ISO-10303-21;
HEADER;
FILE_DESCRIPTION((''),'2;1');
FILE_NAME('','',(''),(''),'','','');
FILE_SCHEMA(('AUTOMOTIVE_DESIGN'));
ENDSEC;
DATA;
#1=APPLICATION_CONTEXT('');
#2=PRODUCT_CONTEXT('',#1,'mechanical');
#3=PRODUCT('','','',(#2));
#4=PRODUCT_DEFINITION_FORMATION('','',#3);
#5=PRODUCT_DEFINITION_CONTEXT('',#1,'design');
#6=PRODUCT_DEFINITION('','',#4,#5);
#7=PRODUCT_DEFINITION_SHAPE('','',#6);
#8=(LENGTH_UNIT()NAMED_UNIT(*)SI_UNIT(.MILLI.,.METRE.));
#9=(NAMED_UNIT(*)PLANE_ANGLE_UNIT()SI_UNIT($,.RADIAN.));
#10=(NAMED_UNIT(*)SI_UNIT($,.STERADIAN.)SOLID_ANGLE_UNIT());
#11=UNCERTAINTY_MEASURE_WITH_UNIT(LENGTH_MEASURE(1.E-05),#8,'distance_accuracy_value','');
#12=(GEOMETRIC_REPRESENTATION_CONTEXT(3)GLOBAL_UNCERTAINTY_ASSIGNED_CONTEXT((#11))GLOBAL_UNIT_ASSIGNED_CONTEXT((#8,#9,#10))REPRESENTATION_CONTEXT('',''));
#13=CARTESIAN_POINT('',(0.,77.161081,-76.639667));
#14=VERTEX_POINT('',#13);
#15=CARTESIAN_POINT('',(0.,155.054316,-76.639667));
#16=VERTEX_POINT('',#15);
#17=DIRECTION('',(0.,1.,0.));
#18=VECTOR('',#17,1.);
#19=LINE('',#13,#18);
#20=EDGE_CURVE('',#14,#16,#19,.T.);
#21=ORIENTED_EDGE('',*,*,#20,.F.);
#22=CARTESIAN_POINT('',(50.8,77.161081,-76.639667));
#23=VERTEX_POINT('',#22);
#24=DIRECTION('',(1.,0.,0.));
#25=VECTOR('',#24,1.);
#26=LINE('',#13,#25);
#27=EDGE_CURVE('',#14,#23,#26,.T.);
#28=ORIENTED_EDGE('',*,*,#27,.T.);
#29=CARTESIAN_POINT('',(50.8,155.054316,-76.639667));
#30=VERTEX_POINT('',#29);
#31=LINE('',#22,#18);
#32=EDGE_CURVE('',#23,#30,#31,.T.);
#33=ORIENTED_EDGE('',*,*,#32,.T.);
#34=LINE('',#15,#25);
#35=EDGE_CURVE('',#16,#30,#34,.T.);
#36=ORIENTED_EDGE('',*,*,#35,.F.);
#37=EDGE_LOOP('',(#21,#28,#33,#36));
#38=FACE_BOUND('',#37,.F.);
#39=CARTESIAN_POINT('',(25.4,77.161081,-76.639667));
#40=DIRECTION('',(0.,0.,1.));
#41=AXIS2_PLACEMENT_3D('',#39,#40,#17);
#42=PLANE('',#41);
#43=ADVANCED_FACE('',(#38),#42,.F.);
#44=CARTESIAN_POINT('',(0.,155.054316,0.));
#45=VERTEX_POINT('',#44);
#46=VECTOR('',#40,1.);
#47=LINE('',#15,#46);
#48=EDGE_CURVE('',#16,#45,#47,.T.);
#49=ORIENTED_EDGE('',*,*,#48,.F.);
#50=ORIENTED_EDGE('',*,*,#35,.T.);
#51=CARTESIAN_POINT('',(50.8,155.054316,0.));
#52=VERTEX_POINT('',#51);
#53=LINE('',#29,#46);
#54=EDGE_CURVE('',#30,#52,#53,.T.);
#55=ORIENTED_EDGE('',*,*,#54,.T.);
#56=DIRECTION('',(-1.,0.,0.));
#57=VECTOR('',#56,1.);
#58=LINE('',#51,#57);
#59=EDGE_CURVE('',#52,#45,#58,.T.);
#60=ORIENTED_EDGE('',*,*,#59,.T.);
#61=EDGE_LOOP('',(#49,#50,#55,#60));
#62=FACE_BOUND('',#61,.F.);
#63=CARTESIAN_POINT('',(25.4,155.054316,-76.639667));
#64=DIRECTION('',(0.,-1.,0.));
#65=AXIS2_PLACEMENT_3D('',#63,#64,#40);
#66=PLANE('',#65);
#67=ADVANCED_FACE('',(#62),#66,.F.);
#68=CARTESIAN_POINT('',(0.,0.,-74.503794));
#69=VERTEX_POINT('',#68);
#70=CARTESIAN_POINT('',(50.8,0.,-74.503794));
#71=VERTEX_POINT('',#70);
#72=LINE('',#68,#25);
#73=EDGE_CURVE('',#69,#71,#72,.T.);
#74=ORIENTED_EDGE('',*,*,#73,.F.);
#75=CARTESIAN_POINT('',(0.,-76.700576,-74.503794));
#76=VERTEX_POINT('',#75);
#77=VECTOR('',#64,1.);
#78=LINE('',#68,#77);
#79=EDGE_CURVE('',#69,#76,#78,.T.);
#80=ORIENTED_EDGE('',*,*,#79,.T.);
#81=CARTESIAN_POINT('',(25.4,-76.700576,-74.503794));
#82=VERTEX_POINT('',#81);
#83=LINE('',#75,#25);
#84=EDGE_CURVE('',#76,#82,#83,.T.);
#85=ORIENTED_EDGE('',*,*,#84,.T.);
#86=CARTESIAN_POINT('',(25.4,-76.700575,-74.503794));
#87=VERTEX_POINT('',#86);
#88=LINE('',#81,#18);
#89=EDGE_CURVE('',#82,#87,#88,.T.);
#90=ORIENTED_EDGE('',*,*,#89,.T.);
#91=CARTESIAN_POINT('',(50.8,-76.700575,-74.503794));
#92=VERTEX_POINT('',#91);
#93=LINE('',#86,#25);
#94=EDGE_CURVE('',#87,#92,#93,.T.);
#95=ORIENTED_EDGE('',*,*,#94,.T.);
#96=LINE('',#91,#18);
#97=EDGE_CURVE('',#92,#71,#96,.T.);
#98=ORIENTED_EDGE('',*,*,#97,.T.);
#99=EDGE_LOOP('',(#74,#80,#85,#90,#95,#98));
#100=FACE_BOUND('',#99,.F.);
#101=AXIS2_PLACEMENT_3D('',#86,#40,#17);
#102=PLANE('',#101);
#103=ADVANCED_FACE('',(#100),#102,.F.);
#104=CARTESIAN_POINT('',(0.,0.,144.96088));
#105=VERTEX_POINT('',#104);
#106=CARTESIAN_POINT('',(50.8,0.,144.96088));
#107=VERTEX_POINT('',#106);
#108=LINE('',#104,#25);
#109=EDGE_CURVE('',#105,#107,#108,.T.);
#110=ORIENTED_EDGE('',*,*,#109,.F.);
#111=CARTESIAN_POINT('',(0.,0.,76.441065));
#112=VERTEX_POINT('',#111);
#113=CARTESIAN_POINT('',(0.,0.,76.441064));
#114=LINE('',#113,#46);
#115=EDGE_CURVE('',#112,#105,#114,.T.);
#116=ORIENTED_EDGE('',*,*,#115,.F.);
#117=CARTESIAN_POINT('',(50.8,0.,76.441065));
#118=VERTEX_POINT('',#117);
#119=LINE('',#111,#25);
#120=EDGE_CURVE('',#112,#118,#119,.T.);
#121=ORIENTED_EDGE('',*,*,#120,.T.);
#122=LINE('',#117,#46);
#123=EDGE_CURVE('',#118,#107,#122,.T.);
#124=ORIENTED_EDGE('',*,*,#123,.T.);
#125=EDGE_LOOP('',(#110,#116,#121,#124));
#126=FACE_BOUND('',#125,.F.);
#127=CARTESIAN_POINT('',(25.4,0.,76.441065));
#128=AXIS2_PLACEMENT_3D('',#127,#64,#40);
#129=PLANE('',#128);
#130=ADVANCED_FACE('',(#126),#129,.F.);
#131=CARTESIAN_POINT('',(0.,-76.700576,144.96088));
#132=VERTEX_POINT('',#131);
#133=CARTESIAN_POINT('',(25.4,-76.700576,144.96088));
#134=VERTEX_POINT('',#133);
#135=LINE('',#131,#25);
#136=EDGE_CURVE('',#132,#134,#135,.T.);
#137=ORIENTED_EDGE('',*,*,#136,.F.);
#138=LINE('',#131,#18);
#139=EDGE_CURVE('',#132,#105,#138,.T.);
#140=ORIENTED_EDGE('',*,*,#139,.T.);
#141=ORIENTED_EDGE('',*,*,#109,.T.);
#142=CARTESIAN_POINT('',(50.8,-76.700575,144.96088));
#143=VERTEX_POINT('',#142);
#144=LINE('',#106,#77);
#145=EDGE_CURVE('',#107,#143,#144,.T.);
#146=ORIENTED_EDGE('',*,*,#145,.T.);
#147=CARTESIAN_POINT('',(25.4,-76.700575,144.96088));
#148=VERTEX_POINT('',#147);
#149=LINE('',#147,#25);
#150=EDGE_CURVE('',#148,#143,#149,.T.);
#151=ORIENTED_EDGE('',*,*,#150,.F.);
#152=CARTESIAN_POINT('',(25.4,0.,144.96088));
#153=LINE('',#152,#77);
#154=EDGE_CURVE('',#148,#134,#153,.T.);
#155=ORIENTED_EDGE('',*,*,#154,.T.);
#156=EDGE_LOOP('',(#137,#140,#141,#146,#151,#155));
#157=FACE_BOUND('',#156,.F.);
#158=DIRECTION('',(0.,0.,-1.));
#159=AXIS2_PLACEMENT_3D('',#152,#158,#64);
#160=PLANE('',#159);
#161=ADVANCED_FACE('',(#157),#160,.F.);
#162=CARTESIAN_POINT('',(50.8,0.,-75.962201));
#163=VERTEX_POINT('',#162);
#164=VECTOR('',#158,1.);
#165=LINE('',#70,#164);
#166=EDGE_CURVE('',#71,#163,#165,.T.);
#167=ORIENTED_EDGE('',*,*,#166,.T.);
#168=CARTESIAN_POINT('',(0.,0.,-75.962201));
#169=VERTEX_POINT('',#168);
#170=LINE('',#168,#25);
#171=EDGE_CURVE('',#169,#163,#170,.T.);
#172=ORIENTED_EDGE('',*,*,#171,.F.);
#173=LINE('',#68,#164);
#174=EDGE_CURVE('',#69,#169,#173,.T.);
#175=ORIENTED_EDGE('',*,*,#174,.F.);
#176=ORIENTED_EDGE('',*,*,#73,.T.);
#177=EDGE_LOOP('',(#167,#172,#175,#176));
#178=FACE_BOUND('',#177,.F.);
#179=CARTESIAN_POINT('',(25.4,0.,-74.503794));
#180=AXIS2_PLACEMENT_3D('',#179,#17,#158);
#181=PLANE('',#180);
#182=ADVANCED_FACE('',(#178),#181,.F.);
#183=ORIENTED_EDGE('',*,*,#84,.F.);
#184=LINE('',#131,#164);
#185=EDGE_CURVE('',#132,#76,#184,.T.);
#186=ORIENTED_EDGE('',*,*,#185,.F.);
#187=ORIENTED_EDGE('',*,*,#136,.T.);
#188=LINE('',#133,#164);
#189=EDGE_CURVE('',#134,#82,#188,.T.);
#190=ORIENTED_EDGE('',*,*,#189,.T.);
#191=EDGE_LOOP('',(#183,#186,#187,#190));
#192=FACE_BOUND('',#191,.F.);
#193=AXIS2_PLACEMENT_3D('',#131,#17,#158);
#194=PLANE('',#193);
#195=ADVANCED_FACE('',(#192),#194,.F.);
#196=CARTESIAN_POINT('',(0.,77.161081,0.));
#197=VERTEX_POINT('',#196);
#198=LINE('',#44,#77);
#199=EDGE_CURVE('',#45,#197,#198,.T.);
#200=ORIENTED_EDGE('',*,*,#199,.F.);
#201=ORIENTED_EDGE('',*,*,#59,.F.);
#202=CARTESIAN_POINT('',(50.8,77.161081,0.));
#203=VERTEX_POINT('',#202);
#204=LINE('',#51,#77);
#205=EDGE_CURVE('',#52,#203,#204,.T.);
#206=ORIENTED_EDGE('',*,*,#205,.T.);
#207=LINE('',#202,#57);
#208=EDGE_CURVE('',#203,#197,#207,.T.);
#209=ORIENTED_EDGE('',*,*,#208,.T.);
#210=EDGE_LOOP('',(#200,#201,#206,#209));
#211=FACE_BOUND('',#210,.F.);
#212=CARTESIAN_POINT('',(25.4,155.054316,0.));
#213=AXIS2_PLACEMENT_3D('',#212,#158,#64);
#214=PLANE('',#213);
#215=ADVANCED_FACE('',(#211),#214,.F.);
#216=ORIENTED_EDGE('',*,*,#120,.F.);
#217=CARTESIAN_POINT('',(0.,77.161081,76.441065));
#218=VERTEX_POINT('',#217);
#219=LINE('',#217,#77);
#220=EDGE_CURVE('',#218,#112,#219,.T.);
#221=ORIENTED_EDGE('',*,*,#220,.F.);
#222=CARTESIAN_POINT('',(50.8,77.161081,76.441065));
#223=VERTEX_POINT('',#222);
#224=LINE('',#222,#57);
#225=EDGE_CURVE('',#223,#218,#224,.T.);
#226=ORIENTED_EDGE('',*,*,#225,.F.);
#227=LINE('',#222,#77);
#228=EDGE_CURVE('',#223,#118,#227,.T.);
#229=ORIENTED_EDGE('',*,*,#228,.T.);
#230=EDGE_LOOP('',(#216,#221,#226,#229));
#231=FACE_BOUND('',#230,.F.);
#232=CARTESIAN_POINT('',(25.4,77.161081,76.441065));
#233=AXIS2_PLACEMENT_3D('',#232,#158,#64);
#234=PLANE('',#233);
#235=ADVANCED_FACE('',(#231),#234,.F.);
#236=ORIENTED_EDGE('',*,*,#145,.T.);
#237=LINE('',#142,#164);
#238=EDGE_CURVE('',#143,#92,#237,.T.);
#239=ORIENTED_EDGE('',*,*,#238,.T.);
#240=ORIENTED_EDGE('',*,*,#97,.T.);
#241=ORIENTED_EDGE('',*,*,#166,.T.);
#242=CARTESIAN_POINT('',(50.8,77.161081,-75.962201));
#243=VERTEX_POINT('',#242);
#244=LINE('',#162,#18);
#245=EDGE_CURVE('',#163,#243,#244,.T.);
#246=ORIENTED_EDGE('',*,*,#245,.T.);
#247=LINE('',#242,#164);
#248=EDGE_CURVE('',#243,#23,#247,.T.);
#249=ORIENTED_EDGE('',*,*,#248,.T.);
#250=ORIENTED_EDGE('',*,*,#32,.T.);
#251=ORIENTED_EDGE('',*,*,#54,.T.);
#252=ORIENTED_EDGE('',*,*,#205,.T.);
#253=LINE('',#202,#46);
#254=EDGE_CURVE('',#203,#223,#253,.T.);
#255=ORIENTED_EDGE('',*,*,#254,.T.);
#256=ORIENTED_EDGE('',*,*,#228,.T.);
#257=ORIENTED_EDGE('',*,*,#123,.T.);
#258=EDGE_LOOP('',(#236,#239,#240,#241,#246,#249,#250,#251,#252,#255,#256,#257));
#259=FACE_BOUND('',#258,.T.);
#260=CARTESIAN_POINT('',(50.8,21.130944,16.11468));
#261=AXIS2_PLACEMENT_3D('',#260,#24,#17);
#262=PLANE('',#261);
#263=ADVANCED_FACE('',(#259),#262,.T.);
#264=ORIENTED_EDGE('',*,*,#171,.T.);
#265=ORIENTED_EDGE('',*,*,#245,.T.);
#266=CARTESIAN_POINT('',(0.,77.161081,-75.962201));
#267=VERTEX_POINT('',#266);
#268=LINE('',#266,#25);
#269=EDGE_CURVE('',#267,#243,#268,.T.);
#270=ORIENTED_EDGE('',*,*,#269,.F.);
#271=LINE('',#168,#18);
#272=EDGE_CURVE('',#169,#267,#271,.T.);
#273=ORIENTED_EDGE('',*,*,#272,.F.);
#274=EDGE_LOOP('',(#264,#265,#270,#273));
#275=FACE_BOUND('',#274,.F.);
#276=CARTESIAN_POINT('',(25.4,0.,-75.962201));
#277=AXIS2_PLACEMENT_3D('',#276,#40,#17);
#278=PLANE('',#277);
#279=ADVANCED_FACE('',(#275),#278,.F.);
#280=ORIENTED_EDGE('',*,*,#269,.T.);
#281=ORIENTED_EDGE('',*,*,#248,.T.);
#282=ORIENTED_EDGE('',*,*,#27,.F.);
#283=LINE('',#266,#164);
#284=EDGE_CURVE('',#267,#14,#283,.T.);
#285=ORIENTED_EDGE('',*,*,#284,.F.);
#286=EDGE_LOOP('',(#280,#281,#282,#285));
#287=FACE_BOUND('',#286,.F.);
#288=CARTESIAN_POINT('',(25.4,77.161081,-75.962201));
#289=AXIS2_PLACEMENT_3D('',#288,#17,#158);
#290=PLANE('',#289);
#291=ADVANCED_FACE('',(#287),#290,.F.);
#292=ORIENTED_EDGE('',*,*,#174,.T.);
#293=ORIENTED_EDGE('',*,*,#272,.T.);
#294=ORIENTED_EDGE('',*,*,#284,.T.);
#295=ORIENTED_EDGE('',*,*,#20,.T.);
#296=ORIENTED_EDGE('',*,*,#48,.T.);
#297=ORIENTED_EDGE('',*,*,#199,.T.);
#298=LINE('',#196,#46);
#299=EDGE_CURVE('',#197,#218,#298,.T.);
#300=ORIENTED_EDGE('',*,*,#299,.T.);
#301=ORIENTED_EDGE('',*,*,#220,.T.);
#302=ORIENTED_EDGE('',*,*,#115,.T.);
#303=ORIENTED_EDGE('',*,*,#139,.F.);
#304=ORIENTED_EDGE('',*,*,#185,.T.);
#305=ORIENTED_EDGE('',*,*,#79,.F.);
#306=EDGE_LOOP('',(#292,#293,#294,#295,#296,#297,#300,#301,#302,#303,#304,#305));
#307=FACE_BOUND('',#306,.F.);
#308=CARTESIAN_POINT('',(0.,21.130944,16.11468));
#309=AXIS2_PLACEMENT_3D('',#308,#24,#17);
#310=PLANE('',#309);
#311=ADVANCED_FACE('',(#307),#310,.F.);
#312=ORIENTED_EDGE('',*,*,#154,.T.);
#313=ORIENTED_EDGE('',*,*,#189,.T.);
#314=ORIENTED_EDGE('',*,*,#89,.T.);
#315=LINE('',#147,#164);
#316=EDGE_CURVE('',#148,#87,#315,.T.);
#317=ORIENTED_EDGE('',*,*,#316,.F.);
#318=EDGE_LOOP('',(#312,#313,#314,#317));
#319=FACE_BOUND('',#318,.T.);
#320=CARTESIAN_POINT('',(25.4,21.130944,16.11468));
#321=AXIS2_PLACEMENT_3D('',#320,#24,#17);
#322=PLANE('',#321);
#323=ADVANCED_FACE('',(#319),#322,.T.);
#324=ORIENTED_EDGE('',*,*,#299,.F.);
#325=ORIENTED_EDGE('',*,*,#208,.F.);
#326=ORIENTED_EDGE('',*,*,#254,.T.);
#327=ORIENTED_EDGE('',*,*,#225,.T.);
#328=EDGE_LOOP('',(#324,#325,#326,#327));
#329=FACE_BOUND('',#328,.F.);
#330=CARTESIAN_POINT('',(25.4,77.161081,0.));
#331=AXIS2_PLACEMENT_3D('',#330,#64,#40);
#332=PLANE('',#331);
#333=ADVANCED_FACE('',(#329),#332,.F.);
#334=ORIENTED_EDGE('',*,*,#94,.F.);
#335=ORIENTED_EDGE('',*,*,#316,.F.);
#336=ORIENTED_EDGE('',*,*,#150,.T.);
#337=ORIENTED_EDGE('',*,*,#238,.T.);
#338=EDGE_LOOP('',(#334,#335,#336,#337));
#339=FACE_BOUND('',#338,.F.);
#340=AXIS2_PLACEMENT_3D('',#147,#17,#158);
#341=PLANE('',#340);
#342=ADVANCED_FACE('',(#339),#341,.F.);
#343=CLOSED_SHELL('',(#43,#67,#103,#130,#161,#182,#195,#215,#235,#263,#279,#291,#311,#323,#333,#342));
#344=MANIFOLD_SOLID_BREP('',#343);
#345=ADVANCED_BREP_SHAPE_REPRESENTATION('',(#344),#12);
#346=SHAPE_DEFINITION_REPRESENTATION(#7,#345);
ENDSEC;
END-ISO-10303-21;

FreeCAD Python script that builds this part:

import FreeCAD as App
import Part
import Sketcher
Q = App.Units.Quantity

doc = App.newDocument("Part")
params = doc.addObject("Spreadsheet::Sheet", "Params")
for row, (alias, value) in enumerate([
    ("pad1_length", "1 in"),
    ("pad2_length", "1 in"),
    ("pad3_length", "1 in"),
], start=1):
    params.set(f"A{row}", alias)
    params.set(f"B{row}", "=" + value)
    params.setAlias(f"B{row}", alias)

body = doc.addObject("PartDesign::Body", "Body")

sketch1 = body.newObject("Sketcher::SketchObject", "Sketch")
sketch1.AttachmentSupport = (doc.getObject("YZ_Plane"), [""])
sketch1.MapMode = "FlatFace"
sketch1.addGeometry([
    Part.LineSegment(App.Vector(-76.700576, -74.503794, 0), App.Vector(0, -74.503794, 0)),
    Part.LineSegment(App.Vector(0, -74.503794, 0), App.Vector(0, -75.962201, 0)),
    Part.LineSegment(App.Vector(0, -75.962201, 0), App.Vector(77.161081, -75.962201, 0)),
    Part.LineSegment(App.Vector(77.161081, -75.962201, 0), App.Vector(77.161081, -76.639667, 0)),
    Part.LineSegment(App.Vector(77.161081, -76.639667, 0), App.Vector(155.054316, -76.639667, 0)),
    Part.LineSegment(App.Vector(155.054316, -76.639667, 0), App.Vector(155.054316, 0, 0)),
    Part.LineSegment(App.Vector(155.054316, 0, 0), App.Vector(77.16108, 0, 0)),
    Part.LineSegment(App.Vector(77.16108, 0, 0), App.Vector(77.16108, 76.441064, 0)),
    Part.LineSegment(App.Vector(77.16108, 76.441064, 0), App.Vector(0, 76.441064, 0)),
    Part.LineSegment(App.Vector(0, 76.441064, 0), App.Vector(0, 144.96088, 0)),
    Part.LineSegment(App.Vector(0, 144.96088, 0), App.Vector(-76.700576, 144.96088, 0)),
    Part.LineSegment(App.Vector(-76.700576, 144.96088, 0), App.Vector(-76.700576, -74.503794, 0)),
], False)
sketch1.addConstraint([
    Sketcher.Constraint("Coincident", 0, 2, 1, 1),
    Sketcher.Constraint("Coincident", 1, 2, 2, 1),
    Sketcher.Constraint("Coincident", 2, 2, 3, 1),
    Sketcher.Constraint("Coincident", 3, 2, 4, 1),
    Sketcher.Constraint("Coincident", 4, 2, 5, 1),
    Sketcher.Constraint("Coincident", 5, 2, 6, 1),
    Sketcher.Constraint("Coincident", 6, 2, 7, 1),
    Sketcher.Constraint("Coincident", 7, 2, 8, 1),
    Sketcher.Constraint("Coincident", 8, 2, 9, 1),
    Sketcher.Constraint("Coincident", 9, 2, 10, 1),
    Sketcher.Constraint("Coincident", 10, 2, 11, 1),
    Sketcher.Constraint("Coincident", 11, 2, 0, 1),
    Sketcher.Constraint("Horizontal", 0),
    Sketcher.Constraint("Vertical", 1),
    Sketcher.Constraint("Horizontal", 2),
    Sketcher.Constraint("Vertical", 3),
    Sketcher.Constraint("Horizontal", 4),
    Sketcher.Constraint("Vertical", 5),
    Sketcher.Constraint("Horizontal", 6),
    Sketcher.Constraint("Vertical", 7),
    Sketcher.Constraint("Horizontal", 8),
    Sketcher.Constraint("Vertical", 9),
    Sketcher.Constraint("Horizontal", 10),
    Sketcher.Constraint("Vertical", 11),
    Sketcher.Constraint("PointOnObject", 0, 2, -2),
    Sketcher.Constraint("PointOnObject", 5, 2, -1),
    Sketcher.Constraint("PointOnObject", 8, 2, -2),
    Sketcher.Constraint("Vertical", 3, 2, 6, 2),
    Sketcher.Constraint("DistanceX", 2, 1, 2, 2, Q("77.161081 mm")),
    Sketcher.Constraint("DistanceY", 1, 2, -1, 1, Q("75.962201 mm")),
    Sketcher.Constraint("DistanceX", 0, 1, 0, 2, Q("76.700576 mm")),
    Sketcher.Constraint("DistanceX", 4, 1, 4, 2, Q("77.893235 mm")),
    Sketcher.Constraint("DistanceY", 1, 2, 1, 1, Q("1.458407 mm")),
    Sketcher.Constraint("DistanceY", 3, 2, 3, 1, Q("0.677466 mm")),
    Sketcher.Constraint("DistanceY", 7, 1, 7, 2, Q("76.441064 mm")),
    Sketcher.Constraint("DistanceY", 9, 1, 9, 2, Q("68.519816 mm")),
])
pad1 = body.newObject("PartDesign::Pad", "Pad")
pad1.Profile = sketch1
pad1.setExpression("Length", "Params.pad1_length")

sketch2 = body.newObject("Sketcher::SketchObject", "Sketch001")
sketch2.AttachmentSupport = (doc.getObject("YZ_Plane"), [""])
sketch2.MapMode = "FlatFace"
sketch2.AttachmentOffset = App.Placement(App.Vector(0, 0, 1 * 25.4), App.Rotation())
sketch2.addGeometry([
    Part.LineSegment(App.Vector(77.161081, 76.441065, 0), App.Vector(0, 76.441065, 0)),
    Part.LineSegment(App.Vector(0, 76.441065, 0), App.Vector(0, 144.96088, 0)),
    Part.LineSegment(App.Vector(0, 144.96088, 0), App.Vector(-76.700575, 144.96088, 0)),
    Part.LineSegment(App.Vector(-76.700575, 144.96088, 0), App.Vector(-76.700575, -74.503794, 0)),
    Part.LineSegment(App.Vector(-76.700575, -74.503794, 0), App.Vector(0, -74.503794, 0)),
    Part.LineSegment(App.Vector(0, -74.503794, 0), App.Vector(0, -75.962201, 0)),
    Part.LineSegment(App.Vector(0, -75.962201, 0), App.Vector(77.161081, -75.962201, 0)),
    Part.LineSegment(App.Vector(77.161081, -75.962201, 0), App.Vector(77.161081, -76.639667, 0)),
    Part.LineSegment(App.Vector(77.161081, -76.639667, 0), App.Vector(155.054316, -76.639667, 0)),
    Part.LineSegment(App.Vector(155.054316, -76.639667, 0), App.Vector(155.054316, 0, 0)),
    Part.LineSegment(App.Vector(155.054316, 0, 0), App.Vector(77.161081, 0, 0)),
    Part.LineSegment(App.Vector(77.161081, 0, 0), App.Vector(77.161081, 76.441065, 0)),
], False)
sketch2.addConstraint([
    Sketcher.Constraint("Coincident", 0, 2, 1, 1),
    Sketcher.Constraint("Coincident", 1, 2, 2, 1),
    Sketcher.Constraint("Coincident", 2, 2, 3, 1),
    Sketcher.Constraint("Coincident", 3, 2, 4, 1),
    Sketcher.Constraint("Coincident", 4, 2, 5, 1),
    Sketcher.Constraint("Coincident", 5, 2, 6, 1),
    Sketcher.Constraint("Coincident", 6, 2, 7, 1),
    Sketcher.Constraint("Coincident", 7, 2, 8, 1),
    Sketcher.Constraint("Coincident", 8, 2, 9, 1),
    Sketcher.Constraint("Coincident", 9, 2, 10, 1),
    Sketcher.Constraint("Coincident", 10, 2, 11, 1),
    Sketcher.Constraint("Coincident", 11, 2, 0, 1),
    Sketcher.Constraint("Horizontal", 0),
    Sketcher.Constraint("Vertical", 1),
    Sketcher.Constraint("Horizontal", 2),
    Sketcher.Constraint("Vertical", 3),
    Sketcher.Constraint("Horizontal", 4),
    Sketcher.Constraint("Vertical", 5),
    Sketcher.Constraint("Horizontal", 6),
    Sketcher.Constraint("Vertical", 7),
    Sketcher.Constraint("Horizontal", 8),
    Sketcher.Constraint("Vertical", 9),
    Sketcher.Constraint("Horizontal", 10),
    Sketcher.Constraint("Vertical", 11),
    Sketcher.Constraint("PointOnObject", 0, 2, -2),
    Sketcher.Constraint("PointOnObject", 4, 2, -2),
    Sketcher.Constraint("PointOnObject", 9, 2, -1),
    Sketcher.Constraint("Vertical", 7, 2, 10, 2),
    Sketcher.Constraint("DistanceX", 0, 2, 0, 1, Q("77.161081 mm")),
    Sketcher.Constraint("DistanceY", 5, 2, -1, 1, Q("75.962201 mm")),
    Sketcher.Constraint("DistanceX", 2, 2, 2, 1, Q("76.700575 mm")),
    Sketcher.Constraint("DistanceX", 8, 1, 8, 2, Q("77.893235 mm")),
    Sketcher.Constraint("DistanceY", 1, 1, 1, 2, Q("68.519815 mm")),
    Sketcher.Constraint("DistanceY", 3, 2, 3, 1, Q("219.464674 mm")),
    Sketcher.Constraint("DistanceY", 5, 2, 5, 1, Q("1.458407 mm")),
    Sketcher.Constraint("DistanceY", 7, 2, 7, 1, Q("0.677466 mm")),
])
pad2 = body.newObject("PartDesign::Pad", "Pad001")
pad2.Profile = sketch2
pad2.setExpression("Length", "Params.pad2_length")
pad2.Reversed = True

sketch3 = body.newObject("Sketcher::SketchObject", "Sketch002")
sketch3.AttachmentSupport = (doc.getObject("YZ_Plane"), [""])
sketch3.MapMode = "FlatFace"
sketch3.AttachmentOffset = App.Placement(App.Vector(0, 0, 1 * 25.4), App.Rotation())
sketch3.addGeometry([
    Part.LineSegment(App.Vector(77.161081, 76.441065, 0), App.Vector(0, 76.441065, 0)),
    Part.LineSegment(App.Vector(0, 76.441065, 0), App.Vector(0, 144.96088, 0)),
    Part.LineSegment(App.Vector(0, 144.96088, 0), App.Vector(-76.700575, 144.96088, 0)),
    Part.LineSegment(App.Vector(-76.700575, 144.96088, 0), App.Vector(-76.700575, -74.503794, 0)),
    Part.LineSegment(App.Vector(-76.700575, -74.503794, 0), App.Vector(0, -74.503794, 0)),
    Part.LineSegment(App.Vector(0, -74.503794, 0), App.Vector(0, -75.962201, 0)),
    Part.LineSegment(App.Vector(0, -75.962201, 0), App.Vector(77.161081, -75.962201, 0)),
    Part.LineSegment(App.Vector(77.161081, -75.962201, 0), App.Vector(77.161081, -76.639667, 0)),
    Part.LineSegment(App.Vector(77.161081, -76.639667, 0), App.Vector(155.054316, -76.639667, 0)),
    Part.LineSegment(App.Vector(155.054316, -76.639667, 0), App.Vector(155.054316, 0, 0)),
    Part.LineSegment(App.Vector(155.054316, 0, 0), App.Vector(77.161081, 0, 0)),
    Part.LineSegment(App.Vector(77.161081, 0, 0), App.Vector(77.161081, 76.441065, 0)),
], False)
sketch3.addConstraint([
    Sketcher.Constraint("Coincident", 0, 2, 1, 1),
    Sketcher.Constraint("Coincident", 1, 2, 2, 1),
    Sketcher.Constraint("Coincident", 2, 2, 3, 1),
    Sketcher.Constraint("Coincident", 3, 2, 4, 1),
    Sketcher.Constraint("Coincident", 4, 2, 5, 1),
    Sketcher.Constraint("Coincident", 5, 2, 6, 1),
    Sketcher.Constraint("Coincident", 6, 2, 7, 1),
    Sketcher.Constraint("Coincident", 7, 2, 8, 1),
    Sketcher.Constraint("Coincident", 8, 2, 9, 1),
    Sketcher.Constraint("Coincident", 9, 2, 10, 1),
    Sketcher.Constraint("Coincident", 10, 2, 11, 1),
    Sketcher.Constraint("Coincident", 11, 2, 0, 1),
    Sketcher.Constraint("Horizontal", 0),
    Sketcher.Constraint("Vertical", 1),
    Sketcher.Constraint("Horizontal", 2),
    Sketcher.Constraint("Vertical", 3),
    Sketcher.Constraint("Horizontal", 4),
    Sketcher.Constraint("Vertical", 5),
    Sketcher.Constraint("Horizontal", 6),
    Sketcher.Constraint("Vertical", 7),
    Sketcher.Constraint("Horizontal", 8),
    Sketcher.Constraint("Vertical", 9),
    Sketcher.Constraint("Horizontal", 10),
    Sketcher.Constraint("Vertical", 11),
    Sketcher.Constraint("PointOnObject", 0, 2, -2),
    Sketcher.Constraint("PointOnObject", 4, 2, -2),
    Sketcher.Constraint("PointOnObject", 9, 2, -1),
    Sketcher.Constraint("Vertical", 7, 2, 10, 2),
    Sketcher.Constraint("DistanceX", 0, 2, 0, 1, Q("77.161081 mm")),
    Sketcher.Constraint("DistanceY", 5, 2, -1, 1, Q("75.962201 mm")),
    Sketcher.Constraint("DistanceX", 2, 2, 2, 1, Q("76.700575 mm")),
    Sketcher.Constraint("DistanceX", 8, 1, 8, 2, Q("77.893235 mm")),
    Sketcher.Constraint("DistanceY", 1, 1, 1, 2, Q("68.519815 mm")),
    Sketcher.Constraint("DistanceY", 3, 2, 3, 1, Q("219.464674 mm")),
    Sketcher.Constraint("DistanceY", 5, 2, 5, 1, Q("1.458407 mm")),
    Sketcher.Constraint("DistanceY", 7, 2, 7, 1, Q("0.677466 mm")),
])
pad3 = body.newObject("PartDesign::Pad", "Pad002")
pad3.Profile = sketch3
pad3.setExpression("Length", "Params.pad3_length")

doc.recompute()
